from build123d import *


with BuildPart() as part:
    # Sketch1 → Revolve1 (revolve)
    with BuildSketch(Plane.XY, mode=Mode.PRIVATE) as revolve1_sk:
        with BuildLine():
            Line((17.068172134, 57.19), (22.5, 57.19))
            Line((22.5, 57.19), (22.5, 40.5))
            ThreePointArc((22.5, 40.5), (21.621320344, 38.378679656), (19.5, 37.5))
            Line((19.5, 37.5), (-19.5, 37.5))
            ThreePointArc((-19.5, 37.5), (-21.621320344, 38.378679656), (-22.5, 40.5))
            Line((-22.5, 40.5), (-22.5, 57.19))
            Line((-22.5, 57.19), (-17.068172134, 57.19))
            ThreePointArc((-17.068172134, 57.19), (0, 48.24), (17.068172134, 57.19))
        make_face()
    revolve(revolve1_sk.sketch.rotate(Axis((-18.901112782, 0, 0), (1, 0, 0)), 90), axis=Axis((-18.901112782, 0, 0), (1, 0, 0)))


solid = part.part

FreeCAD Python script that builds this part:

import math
import FreeCAD as App
import Part
import Sketcher

V = App.Vector

doc = App.newDocument("Part")
body = doc.addObject("PartDesign::Body", "Body")

# Sketch on XY plane
sketch1 = doc.addObject("Sketcher::SketchObject", "Sketch")
body.addObject(sketch1)
sketch1.AttachmentSupport = (doc.XY_Plane, [""])
sketch1.MapMode = "FlatFace"
sketch1.addGeometry(Part.LineSegment(V(22.5, 57.2, 0), V(17.1, 57.2, 0)), False)
sketch1.addGeometry(Part.ArcOfCircle(Part.Circle(V(0, 69, 0), V(0, 0, 1), 20.8), math.radians(-145), math.radians(-35)), False)
sketch1.addGeometry(Part.LineSegment(V(-17.1, 57.2, 0), V(-22.5, 57.2, 0)), False)
sketch1.addGeometry(Part.LineSegment(V(-22.5, 57.2, 0), V(-22.5, 40.5, 0)), False)
sketch1.addGeometry(Part.ArcOfCircle(Part.Circle(V(-19.5, 40.5, 0), V(0, 0, 1), 3), math.radians(180), math.radians(270)), False)
sketch1.addGeometry(Part.LineSegment(V(-19.5, 37.5, 0), V(19.5, 37.5, 0)), False)
sketch1.addGeometry(Part.ArcOfCircle(Part.Circle(V(19.5, 40.5, 0), V(0, 0, 1), 3), math.radians(-90), math.radians(0)), False)
sketch1.addGeometry(Part.LineSegment(V(22.5, 40.5, 0), V(22.5, 57.2, 0)), False)
sketch1.addConstraint(Sketcher.Constraint("Coincident", 0, 2, 1, 2))
sketch1.addConstraint(Sketcher.Constraint("Coincident", 1, 1, 2, 1))
sketch1.addConstraint(Sketcher.Constraint("Coincident", 2, 2, 3, 1))
sketch1.addConstraint(Sketcher.Constraint("Tangent", 3, 2, 4, 1))
sketch1.addConstraint(Sketcher.Constraint("Tangent", 4, 2, 5, 1))
sketch1.addConstraint(Sketcher.Constraint("Tangent", 5, 2, 6, 1))
sketch1.addConstraint(Sketcher.Constraint("Tangent", 6, 2, 7, 1))
sketch1.addConstraint(Sketcher.Constraint("Coincident", 7, 2, 0, 1))
sketch1.addConstraint(Sketcher.Constraint("Horizontal", 0))
sketch1.addConstraint(Sketcher.Constraint("Horizontal", 2))
sketch1.addConstraint(Sketcher.Constraint("Vertical", 3))
sketch1.addConstraint(Sketcher.Constraint("Horizontal", 5))
sketch1.addConstraint(Sketcher.Constraint("Vertical", 7))
sketch1.addConstraint(Sketcher.Constraint("Equal", 4, 6))
sketch1.addConstraint(Sketcher.Constraint("Symmetric", 0, 2, 1, 1, -2))
sketch1.addConstraint(Sketcher.Constraint("Equal", 0, 2))
sketch1.addConstraint(Sketcher.Constraint("Radius", 4, 3.0))
sketch1.addConstraint(Sketcher.Constraint("DistanceX", 5, 1, 5, 2, 39.0))
sketch1.addConstraint(Sketcher.Constraint("Radius", 1, 20.75))
sketch1.addConstraint(Sketcher.Constraint("DistanceY", 3, 2, 3, 1, 16.69))
sketch1.addConstraint(Sketcher.Constraint("DistanceY", -1, 1, 4, 3, 40.5))
sketch1.addConstraint(Sketcher.Constraint("DistanceY", 0, 2, 1, 3, 11.8))
revolution = doc.addObject("PartDesign::Revolution", "Revolution")
body.addObject(revolution)
revolution.Profile = sketch1
revolution.ReferenceAxis = (sketch1, ["H_Axis"])
revolution.Angle = 360

doc.recompute()
